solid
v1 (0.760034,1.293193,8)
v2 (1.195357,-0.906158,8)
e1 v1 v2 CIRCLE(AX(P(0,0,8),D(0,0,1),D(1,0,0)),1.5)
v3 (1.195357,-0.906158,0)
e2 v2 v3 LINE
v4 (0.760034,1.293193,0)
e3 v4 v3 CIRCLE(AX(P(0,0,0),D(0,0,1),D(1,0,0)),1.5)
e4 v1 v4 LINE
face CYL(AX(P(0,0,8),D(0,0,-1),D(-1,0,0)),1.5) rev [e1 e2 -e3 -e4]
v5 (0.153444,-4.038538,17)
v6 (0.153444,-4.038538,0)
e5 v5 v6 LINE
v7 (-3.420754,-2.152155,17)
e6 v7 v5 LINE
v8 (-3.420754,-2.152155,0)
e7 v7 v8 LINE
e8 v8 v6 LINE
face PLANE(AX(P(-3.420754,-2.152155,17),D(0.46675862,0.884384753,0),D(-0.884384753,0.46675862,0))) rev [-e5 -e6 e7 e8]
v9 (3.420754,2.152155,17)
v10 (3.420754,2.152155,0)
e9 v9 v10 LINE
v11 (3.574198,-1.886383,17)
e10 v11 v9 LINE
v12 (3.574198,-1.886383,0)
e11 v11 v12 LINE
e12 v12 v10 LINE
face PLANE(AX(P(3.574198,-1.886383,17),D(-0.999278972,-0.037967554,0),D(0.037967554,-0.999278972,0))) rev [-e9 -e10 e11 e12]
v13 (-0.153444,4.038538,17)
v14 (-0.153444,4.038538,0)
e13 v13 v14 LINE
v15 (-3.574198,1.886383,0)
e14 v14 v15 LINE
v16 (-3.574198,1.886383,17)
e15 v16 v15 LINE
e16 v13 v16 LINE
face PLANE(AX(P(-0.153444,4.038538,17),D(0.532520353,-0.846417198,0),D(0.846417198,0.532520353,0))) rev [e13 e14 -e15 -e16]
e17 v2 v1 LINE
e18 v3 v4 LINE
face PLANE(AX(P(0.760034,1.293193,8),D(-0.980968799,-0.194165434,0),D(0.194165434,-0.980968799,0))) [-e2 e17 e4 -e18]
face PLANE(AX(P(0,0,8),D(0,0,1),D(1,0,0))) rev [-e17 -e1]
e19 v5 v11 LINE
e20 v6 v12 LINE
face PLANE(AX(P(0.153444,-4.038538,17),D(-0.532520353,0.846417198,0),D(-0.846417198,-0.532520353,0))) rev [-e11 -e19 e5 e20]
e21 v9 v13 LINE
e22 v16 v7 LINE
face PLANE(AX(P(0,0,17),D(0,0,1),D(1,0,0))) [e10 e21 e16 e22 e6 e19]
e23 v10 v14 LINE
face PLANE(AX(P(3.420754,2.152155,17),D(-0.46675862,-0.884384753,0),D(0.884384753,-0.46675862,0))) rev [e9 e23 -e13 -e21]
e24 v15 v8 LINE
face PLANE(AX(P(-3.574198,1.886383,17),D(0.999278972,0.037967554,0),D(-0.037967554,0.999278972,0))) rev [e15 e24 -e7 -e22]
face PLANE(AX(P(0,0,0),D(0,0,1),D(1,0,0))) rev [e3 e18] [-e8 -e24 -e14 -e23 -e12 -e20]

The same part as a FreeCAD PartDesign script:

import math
import FreeCAD as App
import Part
import Sketcher

V = App.Vector


def add_polygon(sketch, points):
    """Adds a closed chain of lines whose ends are joined by coincident constraints."""
    first, n = sketch.GeometryCount, len(points)
    for a, b in zip(points, points[1:] + points[:1]):
        sketch.addGeometry(Part.LineSegment(App.Vector(*a, 0), App.Vector(*b, 0)), False)
    for i in range(n):
        sketch.addConstraint(Sketcher.Constraint("Coincident", first + i, 2, first + (i + 1) % n, 1))

doc = App.newDocument("Part")
body = doc.addObject("PartDesign::Body", "Body")

# Sketch on XY plane
sketch1 = body.newObject("Sketcher::SketchObject", "Sketch")
sketch1.AttachmentSupport = (doc.getObject("XY_Plane"), [""])
sketch1.MapMode = "FlatFace"
add_polygon(sketch1, [(3.6, -1.9), (3.4, 2.2), (-0.2, 4), (-3.6, 1.9), (-3.4, -2.2), (0.2, -4)])  # lines 0-5
sketch1.addConstraint([
    Sketcher.Constraint("Symmetric", 0, 2, 3, 2, -1, 1),
    Sketcher.Constraint("Symmetric", 1, 2, 4, 2, -1, 1),
    Sketcher.Constraint("Symmetric", 2, 2, 5, 2, -1, 1),
    Sketcher.Constraint("Equal", 0, 1),
    Sketcher.Constraint("Equal", 1, 2),
    Sketcher.Constraint("DistanceX", 2, 2, -1, 1, 3.574198),
    Sketcher.Constraint("DistanceX", 1, 2, 0, 2, 3.574198),
    Sketcher.Constraint("Distance", 0, 4.041452),
    Sketcher.Constraint("DistanceX", 3, 2, 1, 2, 3.26731),
])
pad1 = body.newObject("PartDesign::Pad", "Pad")
pad1.Profile = sketch1
pad1.Length = 17

# Sketch on XY plane
sketch2 = body.newObject("Sketcher::SketchObject", "Sketch001")
sketch2.AttachmentSupport = (doc.getObject("XY_Plane"), [""])
sketch2.MapMode = "FlatFace"
sketch2.addGeometry([
    Part.LineSegment(V(1.2, -0.9, 0), V(0.8, 1.3, 0)),
    Part.ArcOfCircle(Part.Circle(V(0, 0, 0), V(0, 0, 1), 1.5), math.radians(60), math.radians(323)),
], False)
sketch2.addConstraint([
    Sketcher.Constraint("Coincident", 0, 1, 1, 2),
    Sketcher.Constraint("Coincident", 1, 1, 0, 2),
    Sketcher.Constraint("Coincident", 1, 3, -1, 1),
    Sketcher.Constraint("Radius", 1, 1.5),
    Sketcher.Constraint("Distance", 0, 2.242019),
    Sketcher.Constraint("DistanceY", 0, 1, 1, 1, 2.199351),
])
pocket1 = body.newObject("PartDesign::Pocket", "Pocket")
pocket1.Profile = sketch2
pocket1.Length = 8
pocket1.Reversed = True

doc.recompute()
